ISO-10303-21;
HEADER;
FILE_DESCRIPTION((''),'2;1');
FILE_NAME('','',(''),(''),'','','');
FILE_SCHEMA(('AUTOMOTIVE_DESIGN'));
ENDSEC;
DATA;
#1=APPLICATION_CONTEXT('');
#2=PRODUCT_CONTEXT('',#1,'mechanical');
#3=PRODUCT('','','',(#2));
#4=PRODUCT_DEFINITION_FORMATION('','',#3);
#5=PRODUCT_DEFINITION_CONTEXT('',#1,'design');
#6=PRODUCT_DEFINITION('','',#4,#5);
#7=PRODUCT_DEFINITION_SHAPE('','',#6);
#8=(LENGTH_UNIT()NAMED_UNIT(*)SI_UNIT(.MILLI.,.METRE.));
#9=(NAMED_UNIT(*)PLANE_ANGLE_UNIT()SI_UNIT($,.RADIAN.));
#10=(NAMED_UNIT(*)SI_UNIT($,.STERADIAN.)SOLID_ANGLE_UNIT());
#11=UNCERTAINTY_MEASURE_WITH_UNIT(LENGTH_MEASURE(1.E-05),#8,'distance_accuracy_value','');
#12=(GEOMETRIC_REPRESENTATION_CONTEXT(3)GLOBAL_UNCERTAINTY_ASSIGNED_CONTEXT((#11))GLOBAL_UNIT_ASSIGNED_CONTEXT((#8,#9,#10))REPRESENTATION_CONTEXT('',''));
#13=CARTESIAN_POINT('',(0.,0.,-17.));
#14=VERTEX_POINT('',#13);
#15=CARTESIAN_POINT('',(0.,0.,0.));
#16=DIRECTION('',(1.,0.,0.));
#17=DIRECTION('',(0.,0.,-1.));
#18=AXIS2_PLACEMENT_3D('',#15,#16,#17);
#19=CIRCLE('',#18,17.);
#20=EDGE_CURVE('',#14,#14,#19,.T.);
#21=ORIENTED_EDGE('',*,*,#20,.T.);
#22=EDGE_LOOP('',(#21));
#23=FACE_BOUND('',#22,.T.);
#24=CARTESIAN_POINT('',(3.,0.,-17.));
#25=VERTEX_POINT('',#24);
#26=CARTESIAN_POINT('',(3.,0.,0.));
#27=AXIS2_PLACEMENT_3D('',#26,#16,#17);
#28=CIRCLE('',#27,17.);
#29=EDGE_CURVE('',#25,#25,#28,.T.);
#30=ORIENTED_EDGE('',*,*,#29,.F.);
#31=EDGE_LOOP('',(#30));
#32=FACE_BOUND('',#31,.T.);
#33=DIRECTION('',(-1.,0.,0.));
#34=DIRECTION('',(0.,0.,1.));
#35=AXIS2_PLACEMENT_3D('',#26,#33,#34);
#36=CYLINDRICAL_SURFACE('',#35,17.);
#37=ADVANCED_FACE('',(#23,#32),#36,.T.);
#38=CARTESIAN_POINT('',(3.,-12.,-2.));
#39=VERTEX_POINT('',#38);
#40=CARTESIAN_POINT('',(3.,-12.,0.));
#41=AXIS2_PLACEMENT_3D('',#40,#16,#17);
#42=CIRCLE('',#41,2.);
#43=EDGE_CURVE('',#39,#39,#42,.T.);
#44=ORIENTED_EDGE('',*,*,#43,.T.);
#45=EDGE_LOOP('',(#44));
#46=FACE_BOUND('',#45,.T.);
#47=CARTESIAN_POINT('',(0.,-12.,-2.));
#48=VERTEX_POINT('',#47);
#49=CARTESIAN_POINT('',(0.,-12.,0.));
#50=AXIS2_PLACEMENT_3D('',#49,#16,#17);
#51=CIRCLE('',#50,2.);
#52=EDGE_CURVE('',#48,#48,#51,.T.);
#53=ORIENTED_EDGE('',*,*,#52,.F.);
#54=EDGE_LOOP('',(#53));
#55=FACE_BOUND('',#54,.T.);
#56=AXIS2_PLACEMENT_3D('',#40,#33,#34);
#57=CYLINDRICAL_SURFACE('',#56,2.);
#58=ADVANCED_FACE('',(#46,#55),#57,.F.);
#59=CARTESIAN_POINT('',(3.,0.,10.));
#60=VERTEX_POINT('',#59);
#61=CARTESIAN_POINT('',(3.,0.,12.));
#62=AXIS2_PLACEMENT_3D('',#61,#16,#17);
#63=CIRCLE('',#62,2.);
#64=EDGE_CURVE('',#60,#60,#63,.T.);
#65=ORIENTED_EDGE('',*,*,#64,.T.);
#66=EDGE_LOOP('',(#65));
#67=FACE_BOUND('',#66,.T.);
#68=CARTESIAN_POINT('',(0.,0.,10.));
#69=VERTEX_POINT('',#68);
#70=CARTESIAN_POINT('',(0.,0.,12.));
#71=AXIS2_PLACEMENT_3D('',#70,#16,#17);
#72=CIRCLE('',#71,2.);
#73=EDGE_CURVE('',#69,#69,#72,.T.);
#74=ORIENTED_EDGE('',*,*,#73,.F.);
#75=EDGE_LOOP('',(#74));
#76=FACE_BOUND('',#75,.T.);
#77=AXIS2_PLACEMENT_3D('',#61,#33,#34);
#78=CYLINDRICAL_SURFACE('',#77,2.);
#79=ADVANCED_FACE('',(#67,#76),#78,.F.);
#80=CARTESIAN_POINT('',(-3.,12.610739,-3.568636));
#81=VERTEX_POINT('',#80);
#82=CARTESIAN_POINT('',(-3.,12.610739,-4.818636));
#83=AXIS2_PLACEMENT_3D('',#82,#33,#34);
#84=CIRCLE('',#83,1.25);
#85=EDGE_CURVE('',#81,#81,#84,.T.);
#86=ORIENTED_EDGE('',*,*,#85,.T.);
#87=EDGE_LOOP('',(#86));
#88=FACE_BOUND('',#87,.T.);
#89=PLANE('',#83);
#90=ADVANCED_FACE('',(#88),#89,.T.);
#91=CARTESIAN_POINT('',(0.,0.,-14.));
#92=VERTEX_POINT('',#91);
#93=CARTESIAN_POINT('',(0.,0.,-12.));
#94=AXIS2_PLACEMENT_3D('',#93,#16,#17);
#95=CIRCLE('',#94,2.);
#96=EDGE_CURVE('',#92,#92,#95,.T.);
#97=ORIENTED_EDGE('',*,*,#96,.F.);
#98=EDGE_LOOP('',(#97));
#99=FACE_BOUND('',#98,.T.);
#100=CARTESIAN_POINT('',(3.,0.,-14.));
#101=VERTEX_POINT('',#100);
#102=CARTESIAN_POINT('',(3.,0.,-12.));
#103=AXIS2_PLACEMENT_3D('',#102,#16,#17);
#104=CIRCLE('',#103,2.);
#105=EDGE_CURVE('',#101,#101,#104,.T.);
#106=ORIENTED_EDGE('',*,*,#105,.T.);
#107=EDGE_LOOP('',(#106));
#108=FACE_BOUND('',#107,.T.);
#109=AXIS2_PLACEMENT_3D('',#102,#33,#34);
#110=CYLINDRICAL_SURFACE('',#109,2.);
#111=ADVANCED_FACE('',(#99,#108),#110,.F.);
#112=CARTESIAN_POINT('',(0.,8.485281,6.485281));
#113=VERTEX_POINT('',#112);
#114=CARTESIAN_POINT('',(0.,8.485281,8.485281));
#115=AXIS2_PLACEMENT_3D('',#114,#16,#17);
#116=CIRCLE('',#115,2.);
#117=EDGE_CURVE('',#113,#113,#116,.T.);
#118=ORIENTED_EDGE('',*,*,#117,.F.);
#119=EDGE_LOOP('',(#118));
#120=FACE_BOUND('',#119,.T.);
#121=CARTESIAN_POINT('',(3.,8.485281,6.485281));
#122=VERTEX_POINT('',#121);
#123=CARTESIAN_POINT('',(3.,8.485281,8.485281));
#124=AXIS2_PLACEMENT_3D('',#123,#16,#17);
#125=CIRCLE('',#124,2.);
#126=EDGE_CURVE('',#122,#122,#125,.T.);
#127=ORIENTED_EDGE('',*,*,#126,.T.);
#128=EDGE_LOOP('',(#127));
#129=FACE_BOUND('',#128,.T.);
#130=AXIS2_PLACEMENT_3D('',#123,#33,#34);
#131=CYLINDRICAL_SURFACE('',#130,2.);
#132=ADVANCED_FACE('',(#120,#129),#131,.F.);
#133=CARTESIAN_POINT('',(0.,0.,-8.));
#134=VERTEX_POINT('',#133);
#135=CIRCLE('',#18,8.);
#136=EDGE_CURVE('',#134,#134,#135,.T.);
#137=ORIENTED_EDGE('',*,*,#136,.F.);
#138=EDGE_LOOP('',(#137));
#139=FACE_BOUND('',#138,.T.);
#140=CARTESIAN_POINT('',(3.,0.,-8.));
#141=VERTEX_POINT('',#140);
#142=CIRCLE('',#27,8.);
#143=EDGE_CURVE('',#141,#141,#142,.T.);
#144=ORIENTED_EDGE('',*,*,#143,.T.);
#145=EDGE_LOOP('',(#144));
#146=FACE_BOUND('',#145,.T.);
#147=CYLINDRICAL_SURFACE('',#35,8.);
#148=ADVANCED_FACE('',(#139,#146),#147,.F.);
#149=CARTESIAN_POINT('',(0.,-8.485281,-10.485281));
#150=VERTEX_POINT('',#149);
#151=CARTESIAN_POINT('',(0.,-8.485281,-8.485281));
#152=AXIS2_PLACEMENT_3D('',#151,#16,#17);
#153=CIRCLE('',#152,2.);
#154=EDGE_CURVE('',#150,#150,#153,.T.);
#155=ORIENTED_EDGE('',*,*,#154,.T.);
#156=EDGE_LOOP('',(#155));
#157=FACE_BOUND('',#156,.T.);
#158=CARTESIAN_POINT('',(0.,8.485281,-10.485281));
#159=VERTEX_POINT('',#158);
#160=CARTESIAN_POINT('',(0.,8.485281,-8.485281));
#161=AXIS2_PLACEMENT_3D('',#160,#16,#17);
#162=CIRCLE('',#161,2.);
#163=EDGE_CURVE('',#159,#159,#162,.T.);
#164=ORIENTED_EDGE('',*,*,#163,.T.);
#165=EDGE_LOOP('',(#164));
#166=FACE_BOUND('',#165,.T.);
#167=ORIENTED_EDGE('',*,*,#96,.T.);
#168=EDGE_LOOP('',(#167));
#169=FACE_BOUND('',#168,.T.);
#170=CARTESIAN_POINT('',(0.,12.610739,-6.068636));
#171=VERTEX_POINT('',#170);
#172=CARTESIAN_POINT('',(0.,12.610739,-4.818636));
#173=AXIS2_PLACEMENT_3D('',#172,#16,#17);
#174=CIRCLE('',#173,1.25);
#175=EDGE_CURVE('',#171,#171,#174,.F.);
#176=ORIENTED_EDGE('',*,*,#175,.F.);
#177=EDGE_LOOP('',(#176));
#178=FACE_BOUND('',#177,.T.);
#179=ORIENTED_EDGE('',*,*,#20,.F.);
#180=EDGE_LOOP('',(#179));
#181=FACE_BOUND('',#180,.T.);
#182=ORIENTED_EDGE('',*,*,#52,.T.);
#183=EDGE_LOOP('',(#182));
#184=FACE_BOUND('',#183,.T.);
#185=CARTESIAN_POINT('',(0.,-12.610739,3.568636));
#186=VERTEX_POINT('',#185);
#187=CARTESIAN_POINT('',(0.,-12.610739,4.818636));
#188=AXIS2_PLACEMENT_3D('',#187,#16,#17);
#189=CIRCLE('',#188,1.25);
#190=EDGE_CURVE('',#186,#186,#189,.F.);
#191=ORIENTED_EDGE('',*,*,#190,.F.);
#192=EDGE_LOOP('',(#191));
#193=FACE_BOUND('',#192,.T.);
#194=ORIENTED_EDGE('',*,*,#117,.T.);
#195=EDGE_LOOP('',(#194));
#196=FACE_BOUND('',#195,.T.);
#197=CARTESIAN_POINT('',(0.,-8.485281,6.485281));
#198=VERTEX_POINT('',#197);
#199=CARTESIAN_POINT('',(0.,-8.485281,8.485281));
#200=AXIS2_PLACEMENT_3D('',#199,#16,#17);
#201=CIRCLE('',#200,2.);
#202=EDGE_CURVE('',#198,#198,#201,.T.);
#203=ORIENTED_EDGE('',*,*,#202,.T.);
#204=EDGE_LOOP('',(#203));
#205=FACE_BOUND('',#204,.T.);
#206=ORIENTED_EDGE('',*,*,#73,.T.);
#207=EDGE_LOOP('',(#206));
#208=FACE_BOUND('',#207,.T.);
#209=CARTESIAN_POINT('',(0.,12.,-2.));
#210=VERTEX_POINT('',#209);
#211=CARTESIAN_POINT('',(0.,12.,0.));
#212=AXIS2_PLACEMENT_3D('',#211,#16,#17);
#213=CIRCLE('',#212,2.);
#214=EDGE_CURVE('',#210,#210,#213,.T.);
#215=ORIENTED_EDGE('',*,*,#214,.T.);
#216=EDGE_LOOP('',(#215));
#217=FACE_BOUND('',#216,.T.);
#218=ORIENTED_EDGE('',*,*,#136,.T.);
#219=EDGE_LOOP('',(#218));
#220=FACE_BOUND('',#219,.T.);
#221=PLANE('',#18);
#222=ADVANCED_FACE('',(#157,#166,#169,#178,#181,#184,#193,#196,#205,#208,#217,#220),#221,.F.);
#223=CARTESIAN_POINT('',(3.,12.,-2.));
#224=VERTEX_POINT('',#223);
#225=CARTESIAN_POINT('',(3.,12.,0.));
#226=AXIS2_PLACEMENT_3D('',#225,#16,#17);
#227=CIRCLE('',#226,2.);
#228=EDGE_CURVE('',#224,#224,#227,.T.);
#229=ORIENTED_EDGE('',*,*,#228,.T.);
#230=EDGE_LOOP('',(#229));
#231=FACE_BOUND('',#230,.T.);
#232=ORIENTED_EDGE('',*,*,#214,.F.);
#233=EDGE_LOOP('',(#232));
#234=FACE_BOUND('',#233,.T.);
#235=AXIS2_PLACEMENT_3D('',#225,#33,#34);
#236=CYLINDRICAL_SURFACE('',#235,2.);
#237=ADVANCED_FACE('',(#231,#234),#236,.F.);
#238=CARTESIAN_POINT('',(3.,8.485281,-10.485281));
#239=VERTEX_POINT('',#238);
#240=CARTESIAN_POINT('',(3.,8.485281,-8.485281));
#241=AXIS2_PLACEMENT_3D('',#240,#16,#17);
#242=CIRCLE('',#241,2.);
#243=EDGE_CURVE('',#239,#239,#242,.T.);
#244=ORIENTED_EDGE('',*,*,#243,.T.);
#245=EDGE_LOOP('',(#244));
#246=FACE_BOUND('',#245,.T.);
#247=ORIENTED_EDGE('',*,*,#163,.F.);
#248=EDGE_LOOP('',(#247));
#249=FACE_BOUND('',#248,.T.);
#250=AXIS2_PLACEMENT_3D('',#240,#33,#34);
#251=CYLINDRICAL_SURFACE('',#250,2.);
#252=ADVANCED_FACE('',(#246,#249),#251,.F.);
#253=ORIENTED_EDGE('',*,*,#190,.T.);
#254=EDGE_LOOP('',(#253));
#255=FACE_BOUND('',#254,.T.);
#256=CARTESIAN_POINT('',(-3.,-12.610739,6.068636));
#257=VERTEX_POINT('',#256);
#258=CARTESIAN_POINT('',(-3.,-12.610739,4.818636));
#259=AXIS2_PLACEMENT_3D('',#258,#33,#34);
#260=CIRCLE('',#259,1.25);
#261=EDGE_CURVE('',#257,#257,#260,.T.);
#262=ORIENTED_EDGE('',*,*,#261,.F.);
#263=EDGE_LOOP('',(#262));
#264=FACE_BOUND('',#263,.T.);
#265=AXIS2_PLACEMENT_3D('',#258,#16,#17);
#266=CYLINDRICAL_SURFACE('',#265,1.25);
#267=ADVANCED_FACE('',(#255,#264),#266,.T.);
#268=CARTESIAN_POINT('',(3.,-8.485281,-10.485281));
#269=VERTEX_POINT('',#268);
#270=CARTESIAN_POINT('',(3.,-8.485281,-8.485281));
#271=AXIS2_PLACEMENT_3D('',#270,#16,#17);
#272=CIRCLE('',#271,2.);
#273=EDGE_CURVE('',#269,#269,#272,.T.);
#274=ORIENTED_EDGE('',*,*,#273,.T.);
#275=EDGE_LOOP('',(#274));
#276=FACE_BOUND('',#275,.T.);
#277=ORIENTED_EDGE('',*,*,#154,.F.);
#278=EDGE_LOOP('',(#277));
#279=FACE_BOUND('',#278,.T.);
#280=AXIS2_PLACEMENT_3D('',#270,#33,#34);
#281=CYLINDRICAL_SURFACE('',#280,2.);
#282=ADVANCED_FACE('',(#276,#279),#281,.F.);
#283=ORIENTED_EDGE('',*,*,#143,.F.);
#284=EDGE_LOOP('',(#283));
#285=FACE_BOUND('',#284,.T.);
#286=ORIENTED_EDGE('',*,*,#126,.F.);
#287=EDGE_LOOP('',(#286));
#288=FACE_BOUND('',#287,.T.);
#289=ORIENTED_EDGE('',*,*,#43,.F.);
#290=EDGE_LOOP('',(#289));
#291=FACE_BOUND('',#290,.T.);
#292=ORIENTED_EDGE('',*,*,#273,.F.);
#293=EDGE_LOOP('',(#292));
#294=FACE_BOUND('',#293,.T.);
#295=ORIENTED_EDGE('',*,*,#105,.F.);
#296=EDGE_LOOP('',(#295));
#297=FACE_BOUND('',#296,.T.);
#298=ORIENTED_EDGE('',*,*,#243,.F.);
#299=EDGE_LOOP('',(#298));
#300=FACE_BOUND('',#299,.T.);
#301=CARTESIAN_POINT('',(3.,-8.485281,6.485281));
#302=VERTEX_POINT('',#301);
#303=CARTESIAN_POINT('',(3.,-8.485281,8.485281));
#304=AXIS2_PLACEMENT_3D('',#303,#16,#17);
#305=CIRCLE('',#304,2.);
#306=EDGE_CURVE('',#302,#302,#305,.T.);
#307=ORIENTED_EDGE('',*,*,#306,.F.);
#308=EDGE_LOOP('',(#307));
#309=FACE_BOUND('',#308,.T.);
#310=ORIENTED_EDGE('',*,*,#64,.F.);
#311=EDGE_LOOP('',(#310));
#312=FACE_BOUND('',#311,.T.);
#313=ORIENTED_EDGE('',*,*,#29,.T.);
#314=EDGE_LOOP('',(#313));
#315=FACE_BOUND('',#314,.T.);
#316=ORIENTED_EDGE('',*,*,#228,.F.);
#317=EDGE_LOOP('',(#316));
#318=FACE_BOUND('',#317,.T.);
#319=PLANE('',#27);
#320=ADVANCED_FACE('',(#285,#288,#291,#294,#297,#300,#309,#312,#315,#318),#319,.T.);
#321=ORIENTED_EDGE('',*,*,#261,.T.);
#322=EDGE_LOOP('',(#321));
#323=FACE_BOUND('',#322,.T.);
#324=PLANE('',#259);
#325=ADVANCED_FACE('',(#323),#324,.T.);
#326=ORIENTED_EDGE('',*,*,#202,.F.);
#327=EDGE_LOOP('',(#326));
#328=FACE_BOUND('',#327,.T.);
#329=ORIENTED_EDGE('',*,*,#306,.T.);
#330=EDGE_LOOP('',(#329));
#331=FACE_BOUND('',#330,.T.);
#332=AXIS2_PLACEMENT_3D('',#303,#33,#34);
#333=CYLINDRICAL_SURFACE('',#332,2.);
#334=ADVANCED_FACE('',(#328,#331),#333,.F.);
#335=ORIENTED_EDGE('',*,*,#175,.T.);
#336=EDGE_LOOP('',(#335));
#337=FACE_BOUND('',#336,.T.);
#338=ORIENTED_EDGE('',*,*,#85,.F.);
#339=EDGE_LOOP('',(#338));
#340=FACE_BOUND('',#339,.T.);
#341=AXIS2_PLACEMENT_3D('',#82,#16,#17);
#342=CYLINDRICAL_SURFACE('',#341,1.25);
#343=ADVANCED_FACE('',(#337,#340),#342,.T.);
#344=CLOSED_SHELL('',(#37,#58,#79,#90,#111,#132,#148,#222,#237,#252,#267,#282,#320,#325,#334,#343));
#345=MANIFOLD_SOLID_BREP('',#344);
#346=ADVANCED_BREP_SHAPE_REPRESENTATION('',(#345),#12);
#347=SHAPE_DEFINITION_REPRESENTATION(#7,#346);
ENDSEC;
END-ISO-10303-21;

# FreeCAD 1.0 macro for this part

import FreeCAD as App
import Part
import Sketcher

V = App.Vector
Q = App.Units.Quantity

doc = App.newDocument("Part")
params = doc.addObject("Spreadsheet::Sheet", "Params")
for row, (alias, value) in enumerate([
    ("sketch1_diameter", "34 mm"),
    ("sketch1_diameter2", "4 mm"),
    ("sketch1_diameter3", "16 mm"),
    ("pad1_length", "3 mm"),
    ("sketch2_diameter", "2.5 mm"),
    ("pad2_length", "3 mm"),
], start=1):
    params.set(f"A{row}", alias)
    params.set(f"B{row}", "=" + value)
    params.setAlias(f"B{row}", alias)

body = doc.addObject("PartDesign::Body", "Body")

sketch1 = doc.addObject("Sketcher::SketchObject", "Sketch")
body.addObject(sketch1)
sketch1.AttachmentSupport = (doc.YZ_Plane, [""])
sketch1.MapMode = "FlatFace"
sketch1.addGeometry([
    Part.Circle(V(0, 0, 0), V(0, 0, 1), 17),
    Part.Circle(V(-8.5, 8.5, 0), V(0, 0, 1), 2),
    Part.Circle(V(-12, 0, 0), V(0, 0, 1), 2),
    Part.Circle(V(-8.5, -8.5, 0), V(0, 0, 1), 2),
    Part.Circle(V(0, 12, 0), V(0, 0, 1), 2),
    Part.Circle(V(8.5, 8.5, 0), V(0, 0, 1), 2),
    Part.Circle(V(0, 0, 0), V(0, 0, 1), 8),
    Part.Circle(V(0, -12, 0), V(0, 0, 1), 2),
    Part.Circle(V(12, 0, 0), V(0, 0, 1), 2),
    Part.Circle(V(8.5, -8.5, 0), V(0, 0, 1), 2),
], False)
sketch1.addConstraint([
    Sketcher.Constraint("Coincident", 0, 3, -1, 1),
    Sketcher.Constraint("Coincident", 6, 3, -1, 1),
    Sketcher.Constraint("Equal", 1, 2),
    Sketcher.Constraint("Equal", 2, 3),
    Sketcher.Constraint("Equal", 3, 4),
    Sketcher.Constraint("Equal", 4, 5),
    Sketcher.Constraint("Equal", 5, 7),
    Sketcher.Constraint("Equal", 7, 8),
    Sketcher.Constraint("Equal", 8, 9),
    Sketcher.Constraint("Symmetric", 3, 3, 5, 3, -1, 1),
    Sketcher.Constraint("Symmetric", 4, 3, 7, 3, -1, 1),
    Sketcher.Constraint("Symmetric", 2, 3, 8, 3, -1, 1),
    Sketcher.Constraint("Symmetric", 1, 3, 9, 3, -1, 1),
    Sketcher.Constraint("Symmetric", 1, 3, 5, 3, -2),
    Sketcher.Constraint("PointOnObject", 2, 3, -1),
    Sketcher.Constraint("PointOnObject", 4, 3, -2),
    Sketcher.Constraint("Diameter", 0, Q("34 mm")),
    Sketcher.Constraint("Diameter", 1, Q("4 mm")),
    Sketcher.Constraint("Diameter", 6, Q("16 mm")),
    Sketcher.Constraint("DistanceX", 2, 3, -1, 1, Q("12 mm")),
    Sketcher.Constraint("DistanceY", -1, 1, 4, 3, Q("12 mm")),
    Sketcher.Constraint("DistanceX", 1, 3, -1, 1, Q("8.485281 mm")),
    Sketcher.Constraint("DistanceY", -1, 1, 1, 3, Q("8.485281 mm")),
])
sketch1.setExpression("Constraints[16]", "Params.sketch1_diameter")
sketch1.setExpression("Constraints[17]", "Params.sketch1_diameter2")
sketch1.setExpression("Constraints[18]", "Params.sketch1_diameter3")
pad1 = doc.addObject("PartDesign::Pad", "Pad")
body.addObject(pad1)
pad1.Profile = sketch1
pad1.setExpression("Length", "Params.pad1_length")

sketch2 = doc.addObject("Sketcher::SketchObject", "Sketch001")
body.addObject(sketch2)
sketch2.AttachmentSupport = (doc.YZ_Plane, [""])
sketch2.MapMode = "FlatFace"
sketch2.addGeometry([
    Part.Circle(V(12.6, -4.8, 0), V(0, 0, 1), 1.2),
    Part.Circle(V(-12.6, 4.8, 0), V(0, 0, 1), 1.2),
], False)
sketch2.addConstraint([
    Sketcher.Constraint("Equal", 0, 1),
    Sketcher.Constraint("Symmetric", 0, 3, 1, 3, -1, 1),
    Sketcher.Constraint("Diameter", 0, Q("2.5 mm")),
    Sketcher.Constraint("DistanceX", -1, 1, 0, 3, Q("12.610739 mm")),
    Sketcher.Constraint("DistanceY", 0, 3, 1, 3, Q("9.637271 mm")),
])
sketch2.setExpression("Constraints[2]", "Params.sketch2_diameter")
pad2 = doc.addObject("PartDesign::Pad", "Pad001")
body.addObject(pad2)
pad2.Profile = sketch2
pad2.setExpression("Length", "Params.pad2_length")
pad2.Reversed = True

doc.recompute()
